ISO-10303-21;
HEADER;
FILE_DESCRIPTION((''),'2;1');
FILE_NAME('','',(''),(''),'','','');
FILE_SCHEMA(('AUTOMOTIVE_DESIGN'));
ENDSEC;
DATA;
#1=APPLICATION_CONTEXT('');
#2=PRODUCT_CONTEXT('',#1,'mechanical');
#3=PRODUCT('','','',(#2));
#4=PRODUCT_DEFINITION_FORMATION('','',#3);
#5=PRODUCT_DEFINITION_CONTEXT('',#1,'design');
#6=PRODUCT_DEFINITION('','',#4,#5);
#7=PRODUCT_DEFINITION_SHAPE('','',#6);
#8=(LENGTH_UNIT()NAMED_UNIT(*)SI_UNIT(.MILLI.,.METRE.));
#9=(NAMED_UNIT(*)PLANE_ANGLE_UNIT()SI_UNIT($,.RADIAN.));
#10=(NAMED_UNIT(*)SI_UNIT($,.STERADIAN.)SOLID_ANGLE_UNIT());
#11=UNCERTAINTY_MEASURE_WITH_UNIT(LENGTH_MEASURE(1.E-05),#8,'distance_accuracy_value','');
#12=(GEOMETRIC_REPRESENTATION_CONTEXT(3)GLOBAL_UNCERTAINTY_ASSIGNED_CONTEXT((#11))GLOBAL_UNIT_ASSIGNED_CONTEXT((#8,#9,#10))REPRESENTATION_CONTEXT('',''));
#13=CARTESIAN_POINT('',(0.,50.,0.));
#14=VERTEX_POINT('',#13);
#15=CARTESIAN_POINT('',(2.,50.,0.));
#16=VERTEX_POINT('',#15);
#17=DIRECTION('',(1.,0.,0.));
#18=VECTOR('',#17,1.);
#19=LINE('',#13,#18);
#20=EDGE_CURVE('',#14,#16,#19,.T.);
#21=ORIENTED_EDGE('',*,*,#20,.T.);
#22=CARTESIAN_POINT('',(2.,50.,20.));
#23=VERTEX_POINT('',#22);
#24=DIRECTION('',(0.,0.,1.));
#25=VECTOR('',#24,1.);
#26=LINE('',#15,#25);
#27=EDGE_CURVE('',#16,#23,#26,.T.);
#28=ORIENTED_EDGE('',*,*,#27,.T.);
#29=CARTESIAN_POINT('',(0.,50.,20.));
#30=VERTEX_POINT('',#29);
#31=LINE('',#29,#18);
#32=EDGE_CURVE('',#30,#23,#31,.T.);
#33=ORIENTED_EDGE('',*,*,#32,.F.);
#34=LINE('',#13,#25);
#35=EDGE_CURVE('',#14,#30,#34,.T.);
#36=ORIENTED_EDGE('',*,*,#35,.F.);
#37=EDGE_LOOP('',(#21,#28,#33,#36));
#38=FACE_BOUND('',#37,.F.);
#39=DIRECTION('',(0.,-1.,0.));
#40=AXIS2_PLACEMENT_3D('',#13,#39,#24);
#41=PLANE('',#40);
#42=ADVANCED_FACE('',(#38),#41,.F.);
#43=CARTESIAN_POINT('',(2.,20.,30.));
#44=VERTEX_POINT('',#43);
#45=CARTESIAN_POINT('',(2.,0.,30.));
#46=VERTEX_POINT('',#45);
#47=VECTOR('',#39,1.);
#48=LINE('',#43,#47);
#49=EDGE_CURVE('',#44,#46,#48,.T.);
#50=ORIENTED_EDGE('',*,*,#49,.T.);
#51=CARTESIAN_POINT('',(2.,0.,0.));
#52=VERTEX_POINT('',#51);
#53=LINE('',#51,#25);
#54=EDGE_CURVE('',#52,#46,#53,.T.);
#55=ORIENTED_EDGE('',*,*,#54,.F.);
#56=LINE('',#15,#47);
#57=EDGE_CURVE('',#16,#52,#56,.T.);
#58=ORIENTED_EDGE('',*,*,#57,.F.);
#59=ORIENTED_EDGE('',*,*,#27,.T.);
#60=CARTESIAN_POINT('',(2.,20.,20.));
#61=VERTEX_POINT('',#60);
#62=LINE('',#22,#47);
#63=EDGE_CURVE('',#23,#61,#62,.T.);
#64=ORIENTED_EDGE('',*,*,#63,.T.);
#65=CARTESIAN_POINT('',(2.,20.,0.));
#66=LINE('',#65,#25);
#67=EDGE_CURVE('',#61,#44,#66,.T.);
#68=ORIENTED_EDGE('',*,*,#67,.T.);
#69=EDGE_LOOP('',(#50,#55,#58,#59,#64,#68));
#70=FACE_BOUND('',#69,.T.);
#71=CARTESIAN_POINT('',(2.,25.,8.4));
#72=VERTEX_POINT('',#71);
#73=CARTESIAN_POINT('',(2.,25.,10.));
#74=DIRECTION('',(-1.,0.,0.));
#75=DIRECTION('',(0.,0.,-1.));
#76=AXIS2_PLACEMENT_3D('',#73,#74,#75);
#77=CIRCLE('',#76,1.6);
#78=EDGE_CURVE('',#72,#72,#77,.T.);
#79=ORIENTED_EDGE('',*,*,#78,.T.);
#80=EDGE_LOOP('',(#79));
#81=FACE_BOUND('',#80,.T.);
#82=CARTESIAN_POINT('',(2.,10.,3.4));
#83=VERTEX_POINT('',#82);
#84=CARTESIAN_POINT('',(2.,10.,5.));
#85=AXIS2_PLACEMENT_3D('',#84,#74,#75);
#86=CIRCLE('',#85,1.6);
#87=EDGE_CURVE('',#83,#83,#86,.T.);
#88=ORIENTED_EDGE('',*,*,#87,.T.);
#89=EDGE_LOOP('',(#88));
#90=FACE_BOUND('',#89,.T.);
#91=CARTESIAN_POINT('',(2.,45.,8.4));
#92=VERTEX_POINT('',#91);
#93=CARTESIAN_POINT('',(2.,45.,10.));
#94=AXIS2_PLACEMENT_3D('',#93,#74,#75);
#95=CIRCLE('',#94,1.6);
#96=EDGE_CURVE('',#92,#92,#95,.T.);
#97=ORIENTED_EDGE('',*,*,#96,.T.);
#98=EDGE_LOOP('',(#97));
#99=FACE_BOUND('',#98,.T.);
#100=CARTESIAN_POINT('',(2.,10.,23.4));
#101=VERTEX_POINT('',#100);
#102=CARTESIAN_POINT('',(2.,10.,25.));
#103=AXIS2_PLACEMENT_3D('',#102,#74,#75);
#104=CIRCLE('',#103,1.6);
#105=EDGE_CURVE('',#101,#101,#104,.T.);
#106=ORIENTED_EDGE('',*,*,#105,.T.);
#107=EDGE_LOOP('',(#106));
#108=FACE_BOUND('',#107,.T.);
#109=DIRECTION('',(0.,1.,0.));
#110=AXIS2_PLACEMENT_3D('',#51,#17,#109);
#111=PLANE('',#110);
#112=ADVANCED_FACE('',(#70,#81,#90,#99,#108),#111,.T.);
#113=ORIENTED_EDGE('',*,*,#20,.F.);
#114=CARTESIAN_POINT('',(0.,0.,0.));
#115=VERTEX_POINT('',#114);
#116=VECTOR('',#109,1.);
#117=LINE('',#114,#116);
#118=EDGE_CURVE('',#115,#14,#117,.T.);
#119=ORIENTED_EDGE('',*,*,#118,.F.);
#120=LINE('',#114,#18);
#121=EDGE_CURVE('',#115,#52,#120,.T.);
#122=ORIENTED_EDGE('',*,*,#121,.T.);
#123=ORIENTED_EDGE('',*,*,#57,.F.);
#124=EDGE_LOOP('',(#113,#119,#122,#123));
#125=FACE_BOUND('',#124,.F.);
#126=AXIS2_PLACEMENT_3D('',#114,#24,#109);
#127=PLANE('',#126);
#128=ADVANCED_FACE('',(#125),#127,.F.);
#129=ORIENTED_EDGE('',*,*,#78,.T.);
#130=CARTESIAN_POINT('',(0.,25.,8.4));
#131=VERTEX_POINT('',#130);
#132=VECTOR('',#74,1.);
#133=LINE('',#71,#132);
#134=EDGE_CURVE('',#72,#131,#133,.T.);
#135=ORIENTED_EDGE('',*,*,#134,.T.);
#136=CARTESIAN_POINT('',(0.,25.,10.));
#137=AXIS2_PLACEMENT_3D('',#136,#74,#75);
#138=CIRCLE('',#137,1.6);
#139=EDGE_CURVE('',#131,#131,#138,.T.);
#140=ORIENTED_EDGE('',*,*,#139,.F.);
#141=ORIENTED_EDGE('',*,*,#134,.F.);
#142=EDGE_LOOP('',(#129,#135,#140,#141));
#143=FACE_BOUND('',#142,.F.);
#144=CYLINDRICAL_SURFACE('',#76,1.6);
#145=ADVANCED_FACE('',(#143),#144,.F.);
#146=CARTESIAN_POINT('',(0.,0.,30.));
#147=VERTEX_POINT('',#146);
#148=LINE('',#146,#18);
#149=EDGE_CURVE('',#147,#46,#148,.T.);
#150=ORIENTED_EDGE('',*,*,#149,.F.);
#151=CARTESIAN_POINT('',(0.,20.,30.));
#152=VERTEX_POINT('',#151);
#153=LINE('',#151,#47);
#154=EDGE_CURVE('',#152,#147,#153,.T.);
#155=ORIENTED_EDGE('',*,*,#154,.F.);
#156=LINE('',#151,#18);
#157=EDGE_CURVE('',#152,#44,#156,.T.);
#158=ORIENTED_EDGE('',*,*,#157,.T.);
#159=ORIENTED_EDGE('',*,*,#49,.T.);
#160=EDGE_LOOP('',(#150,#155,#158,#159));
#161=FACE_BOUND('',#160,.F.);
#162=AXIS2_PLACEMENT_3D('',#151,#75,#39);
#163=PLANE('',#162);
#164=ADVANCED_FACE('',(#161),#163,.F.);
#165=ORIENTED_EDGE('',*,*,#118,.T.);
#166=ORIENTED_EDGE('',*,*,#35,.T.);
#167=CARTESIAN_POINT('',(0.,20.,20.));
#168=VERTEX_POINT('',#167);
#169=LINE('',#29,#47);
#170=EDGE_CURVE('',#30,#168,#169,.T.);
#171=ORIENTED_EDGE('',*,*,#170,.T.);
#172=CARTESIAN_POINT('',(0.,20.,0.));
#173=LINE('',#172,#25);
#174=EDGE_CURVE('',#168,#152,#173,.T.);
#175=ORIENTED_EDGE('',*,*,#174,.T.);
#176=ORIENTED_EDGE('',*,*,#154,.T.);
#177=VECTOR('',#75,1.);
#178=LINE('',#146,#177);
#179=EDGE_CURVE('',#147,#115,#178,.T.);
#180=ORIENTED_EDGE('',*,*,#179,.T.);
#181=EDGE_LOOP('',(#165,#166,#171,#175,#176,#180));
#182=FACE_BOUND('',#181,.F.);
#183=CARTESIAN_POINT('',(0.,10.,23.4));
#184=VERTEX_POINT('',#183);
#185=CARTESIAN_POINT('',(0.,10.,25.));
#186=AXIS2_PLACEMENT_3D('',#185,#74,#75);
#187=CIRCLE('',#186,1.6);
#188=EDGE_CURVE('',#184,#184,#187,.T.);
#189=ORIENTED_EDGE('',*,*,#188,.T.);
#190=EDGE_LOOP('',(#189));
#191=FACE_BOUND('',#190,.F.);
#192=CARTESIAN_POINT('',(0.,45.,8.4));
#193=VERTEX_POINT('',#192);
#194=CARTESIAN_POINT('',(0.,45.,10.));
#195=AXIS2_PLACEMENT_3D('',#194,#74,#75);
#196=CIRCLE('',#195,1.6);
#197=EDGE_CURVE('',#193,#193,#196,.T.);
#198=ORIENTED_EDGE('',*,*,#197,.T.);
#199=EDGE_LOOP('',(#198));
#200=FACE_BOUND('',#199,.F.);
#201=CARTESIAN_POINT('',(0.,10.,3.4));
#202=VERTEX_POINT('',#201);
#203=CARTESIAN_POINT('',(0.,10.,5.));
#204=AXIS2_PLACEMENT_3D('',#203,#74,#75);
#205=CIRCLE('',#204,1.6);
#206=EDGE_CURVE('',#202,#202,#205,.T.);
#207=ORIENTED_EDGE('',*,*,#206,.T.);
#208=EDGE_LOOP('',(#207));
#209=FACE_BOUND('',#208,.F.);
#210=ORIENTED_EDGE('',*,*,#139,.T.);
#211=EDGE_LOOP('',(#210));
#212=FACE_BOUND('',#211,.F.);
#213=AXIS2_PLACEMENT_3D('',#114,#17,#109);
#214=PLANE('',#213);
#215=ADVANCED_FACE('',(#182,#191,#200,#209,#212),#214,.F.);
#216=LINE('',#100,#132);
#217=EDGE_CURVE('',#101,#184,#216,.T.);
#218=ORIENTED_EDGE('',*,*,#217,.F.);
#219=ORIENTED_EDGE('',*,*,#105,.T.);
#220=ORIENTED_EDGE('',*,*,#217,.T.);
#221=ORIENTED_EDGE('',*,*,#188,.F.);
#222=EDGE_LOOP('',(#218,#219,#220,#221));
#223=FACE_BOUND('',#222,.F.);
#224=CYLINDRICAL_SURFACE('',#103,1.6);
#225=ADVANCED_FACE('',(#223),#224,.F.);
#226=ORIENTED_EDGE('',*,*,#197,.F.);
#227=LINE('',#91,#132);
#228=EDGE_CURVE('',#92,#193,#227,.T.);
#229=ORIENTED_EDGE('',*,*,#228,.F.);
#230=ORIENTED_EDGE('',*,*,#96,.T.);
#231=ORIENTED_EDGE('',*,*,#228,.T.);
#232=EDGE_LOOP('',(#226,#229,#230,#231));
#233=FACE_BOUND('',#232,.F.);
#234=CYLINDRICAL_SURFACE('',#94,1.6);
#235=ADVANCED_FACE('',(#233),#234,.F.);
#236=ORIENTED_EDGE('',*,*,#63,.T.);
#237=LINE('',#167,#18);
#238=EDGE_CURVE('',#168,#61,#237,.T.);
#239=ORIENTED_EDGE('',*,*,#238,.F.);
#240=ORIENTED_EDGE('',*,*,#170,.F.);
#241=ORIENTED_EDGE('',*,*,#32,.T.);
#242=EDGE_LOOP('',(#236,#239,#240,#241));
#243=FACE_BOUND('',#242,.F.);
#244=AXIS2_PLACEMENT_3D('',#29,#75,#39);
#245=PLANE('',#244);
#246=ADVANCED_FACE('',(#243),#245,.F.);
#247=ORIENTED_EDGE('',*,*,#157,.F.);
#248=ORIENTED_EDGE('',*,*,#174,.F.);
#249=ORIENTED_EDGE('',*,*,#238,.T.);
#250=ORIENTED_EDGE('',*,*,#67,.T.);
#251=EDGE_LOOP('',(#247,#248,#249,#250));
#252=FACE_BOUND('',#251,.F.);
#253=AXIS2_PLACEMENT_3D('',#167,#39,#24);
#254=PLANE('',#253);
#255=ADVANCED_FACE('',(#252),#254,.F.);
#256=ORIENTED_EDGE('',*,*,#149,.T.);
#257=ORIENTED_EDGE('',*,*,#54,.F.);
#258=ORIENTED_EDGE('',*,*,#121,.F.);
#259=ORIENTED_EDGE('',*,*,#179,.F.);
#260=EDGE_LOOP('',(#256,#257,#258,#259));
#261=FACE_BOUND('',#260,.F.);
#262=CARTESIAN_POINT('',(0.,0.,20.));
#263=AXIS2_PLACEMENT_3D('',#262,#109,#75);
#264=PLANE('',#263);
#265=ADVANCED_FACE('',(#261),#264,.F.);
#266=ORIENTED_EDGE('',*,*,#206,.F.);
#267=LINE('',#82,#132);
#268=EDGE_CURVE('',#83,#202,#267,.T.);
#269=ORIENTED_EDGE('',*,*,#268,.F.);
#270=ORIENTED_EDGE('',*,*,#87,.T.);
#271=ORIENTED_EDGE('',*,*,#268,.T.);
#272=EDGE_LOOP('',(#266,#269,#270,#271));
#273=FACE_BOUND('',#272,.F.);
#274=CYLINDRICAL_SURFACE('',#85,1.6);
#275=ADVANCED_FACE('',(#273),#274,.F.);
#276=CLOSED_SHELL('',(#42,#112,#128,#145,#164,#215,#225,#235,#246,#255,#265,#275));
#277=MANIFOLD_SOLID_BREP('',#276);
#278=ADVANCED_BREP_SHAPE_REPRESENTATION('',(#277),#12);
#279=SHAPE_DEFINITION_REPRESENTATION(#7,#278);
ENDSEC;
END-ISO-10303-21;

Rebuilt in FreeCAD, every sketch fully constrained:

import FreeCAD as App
import Part
import Sketcher

doc = App.newDocument("Part")
body = doc.addObject("PartDesign::Body", "Body")

# Sketch on YZ plane
sketch1 = body.newObject("Sketcher::SketchObject", "Sketch")
sketch1.AttachmentSupport = (doc.getObject("YZ_Plane"), [""])
sketch1.MapMode = "FlatFace"
sketch1.addGeometry(Part.LineSegment(App.Vector(0, 0, 0), App.Vector(50, 0, 0)), False)
sketch1.addGeometry(Part.LineSegment(App.Vector(50, 0, 0), App.Vector(50, 20, 0)), False)
sketch1.addGeometry(Part.LineSegment(App.Vector(50, 20, 0), App.Vector(20, 20, 0)), False)
sketch1.addGeometry(Part.LineSegment(App.Vector(20, 20, 0), App.Vector(20, 30, 0)), False)
sketch1.addGeometry(Part.LineSegment(App.Vector(20, 30, 0), App.Vector(0, 30, 0)), False)
sketch1.addGeometry(Part.LineSegment(App.Vector(0, 30, 0), App.Vector(0, 0, 0)), False)
sketch1.addConstraint(Sketcher.Constraint("Coincident", 0, 2, 1, 1))
sketch1.addConstraint(Sketcher.Constraint("Coincident", 1, 2, 2, 1))
sketch1.addConstraint(Sketcher.Constraint("Coincident", 2, 2, 3, 1))
sketch1.addConstraint(Sketcher.Constraint("Coincident", 3, 2, 4, 1))
sketch1.addConstraint(Sketcher.Constraint("Coincident", 4, 2, 5, 1))
sketch1.addConstraint(Sketcher.Constraint("Coincident", 5, 2, 0, 1))
sketch1.addConstraint(Sketcher.Constraint("Horizontal", 0))
sketch1.addConstraint(Sketcher.Constraint("Vertical", 1))
sketch1.addConstraint(Sketcher.Constraint("Horizontal", 2))
sketch1.addConstraint(Sketcher.Constraint("Vertical", 3))
sketch1.addConstraint(Sketcher.Constraint("Horizontal", 4))
sketch1.addConstraint(Sketcher.Constraint("Vertical", 5))
sketch1.addConstraint(Sketcher.Constraint("Coincident", 5, 2, -1, 1))
sketch1.addConstraint(Sketcher.Constraint("Equal", 4, 1))
sketch1.addConstraint(Sketcher.Constraint("Equal", 2, 5))
sketch1.addConstraint(Sketcher.Constraint("DistanceX", 2, 2, 2, 1, 30.0))
sketch1.addConstraint(Sketcher.Constraint("DistanceX", 4, 2, 4, 1, 20.0))
pad1 = body.newObject("PartDesign::Pad", "Pad")
pad1.Profile = sketch1
pad1.Length = 2

# Sketch on YZ plane
sketch2 = body.newObject("Sketcher::SketchObject", "Sketch001")
sketch2.AttachmentSupport = (doc.getObject("YZ_Plane"), [""])
sketch2.MapMode = "FlatFace"
sketch2.AttachmentOffset = App.Placement(App.Vector(0, 0, 2), App.Rotation())
sketch2.addGeometry(Part.Circle(App.Vector(10, 25, 0), App.Vector(0, 0, 1), 1.6), False)
sketch2.addGeometry(Part.Circle(App.Vector(10, 5, 0), App.Vector(0, 0, 1), 1.6), False)
sketch2.addGeometry(Part.Circle(App.Vector(25, 10, 0), App.Vector(0, 0, 1), 1.6), False)
sketch2.addGeometry(Part.Circle(App.Vector(45, 10, 0), App.Vector(0, 0, 1), 1.6), False)
sketch2.addConstraint(Sketcher.Constraint("Equal", 0, 1))
sketch2.addConstraint(Sketcher.Constraint("Equal", 1, 2))
sketch2.addConstraint(Sketcher.Constraint("Equal", 2, 3))
sketch2.addConstraint(Sketcher.Constraint("Horizontal", 2, 3, 3, 3))
sketch2.addConstraint(Sketcher.Constraint("Vertical", 0, 3, 1, 3))
sketch2.addConstraint(Sketcher.Constraint("Diameter", 0, 3.2))
sketch2.addConstraint(Sketcher.Constraint("DistanceX", -1, 1, 0, 3, 10.0))
sketch2.addConstraint(Sketcher.Constraint("DistanceY", -1, 1, 0, 3, 25.0))
sketch2.addConstraint(Sketcher.Constraint("DistanceY", -1, 1, 1, 3, 5.0))
sketch2.addConstraint(Sketcher.Constraint("DistanceX", -1, 1, 2, 3, 25.0))
sketch2.addConstraint(Sketcher.Constraint("DistanceY", -1, 1, 2, 3, 10.0))
sketch2.addConstraint(Sketcher.Constraint("DistanceX", -1, 1, 3, 3, 45.0))
doc.recompute()
hole = body.newObject("PartDesign::Hole", "Hole")
hole.Profile = sketch2
hole.ThreadType = "None"
hole.Diameter = 3.2
hole.DepthType = "ThroughAll"

doc.recompute()
